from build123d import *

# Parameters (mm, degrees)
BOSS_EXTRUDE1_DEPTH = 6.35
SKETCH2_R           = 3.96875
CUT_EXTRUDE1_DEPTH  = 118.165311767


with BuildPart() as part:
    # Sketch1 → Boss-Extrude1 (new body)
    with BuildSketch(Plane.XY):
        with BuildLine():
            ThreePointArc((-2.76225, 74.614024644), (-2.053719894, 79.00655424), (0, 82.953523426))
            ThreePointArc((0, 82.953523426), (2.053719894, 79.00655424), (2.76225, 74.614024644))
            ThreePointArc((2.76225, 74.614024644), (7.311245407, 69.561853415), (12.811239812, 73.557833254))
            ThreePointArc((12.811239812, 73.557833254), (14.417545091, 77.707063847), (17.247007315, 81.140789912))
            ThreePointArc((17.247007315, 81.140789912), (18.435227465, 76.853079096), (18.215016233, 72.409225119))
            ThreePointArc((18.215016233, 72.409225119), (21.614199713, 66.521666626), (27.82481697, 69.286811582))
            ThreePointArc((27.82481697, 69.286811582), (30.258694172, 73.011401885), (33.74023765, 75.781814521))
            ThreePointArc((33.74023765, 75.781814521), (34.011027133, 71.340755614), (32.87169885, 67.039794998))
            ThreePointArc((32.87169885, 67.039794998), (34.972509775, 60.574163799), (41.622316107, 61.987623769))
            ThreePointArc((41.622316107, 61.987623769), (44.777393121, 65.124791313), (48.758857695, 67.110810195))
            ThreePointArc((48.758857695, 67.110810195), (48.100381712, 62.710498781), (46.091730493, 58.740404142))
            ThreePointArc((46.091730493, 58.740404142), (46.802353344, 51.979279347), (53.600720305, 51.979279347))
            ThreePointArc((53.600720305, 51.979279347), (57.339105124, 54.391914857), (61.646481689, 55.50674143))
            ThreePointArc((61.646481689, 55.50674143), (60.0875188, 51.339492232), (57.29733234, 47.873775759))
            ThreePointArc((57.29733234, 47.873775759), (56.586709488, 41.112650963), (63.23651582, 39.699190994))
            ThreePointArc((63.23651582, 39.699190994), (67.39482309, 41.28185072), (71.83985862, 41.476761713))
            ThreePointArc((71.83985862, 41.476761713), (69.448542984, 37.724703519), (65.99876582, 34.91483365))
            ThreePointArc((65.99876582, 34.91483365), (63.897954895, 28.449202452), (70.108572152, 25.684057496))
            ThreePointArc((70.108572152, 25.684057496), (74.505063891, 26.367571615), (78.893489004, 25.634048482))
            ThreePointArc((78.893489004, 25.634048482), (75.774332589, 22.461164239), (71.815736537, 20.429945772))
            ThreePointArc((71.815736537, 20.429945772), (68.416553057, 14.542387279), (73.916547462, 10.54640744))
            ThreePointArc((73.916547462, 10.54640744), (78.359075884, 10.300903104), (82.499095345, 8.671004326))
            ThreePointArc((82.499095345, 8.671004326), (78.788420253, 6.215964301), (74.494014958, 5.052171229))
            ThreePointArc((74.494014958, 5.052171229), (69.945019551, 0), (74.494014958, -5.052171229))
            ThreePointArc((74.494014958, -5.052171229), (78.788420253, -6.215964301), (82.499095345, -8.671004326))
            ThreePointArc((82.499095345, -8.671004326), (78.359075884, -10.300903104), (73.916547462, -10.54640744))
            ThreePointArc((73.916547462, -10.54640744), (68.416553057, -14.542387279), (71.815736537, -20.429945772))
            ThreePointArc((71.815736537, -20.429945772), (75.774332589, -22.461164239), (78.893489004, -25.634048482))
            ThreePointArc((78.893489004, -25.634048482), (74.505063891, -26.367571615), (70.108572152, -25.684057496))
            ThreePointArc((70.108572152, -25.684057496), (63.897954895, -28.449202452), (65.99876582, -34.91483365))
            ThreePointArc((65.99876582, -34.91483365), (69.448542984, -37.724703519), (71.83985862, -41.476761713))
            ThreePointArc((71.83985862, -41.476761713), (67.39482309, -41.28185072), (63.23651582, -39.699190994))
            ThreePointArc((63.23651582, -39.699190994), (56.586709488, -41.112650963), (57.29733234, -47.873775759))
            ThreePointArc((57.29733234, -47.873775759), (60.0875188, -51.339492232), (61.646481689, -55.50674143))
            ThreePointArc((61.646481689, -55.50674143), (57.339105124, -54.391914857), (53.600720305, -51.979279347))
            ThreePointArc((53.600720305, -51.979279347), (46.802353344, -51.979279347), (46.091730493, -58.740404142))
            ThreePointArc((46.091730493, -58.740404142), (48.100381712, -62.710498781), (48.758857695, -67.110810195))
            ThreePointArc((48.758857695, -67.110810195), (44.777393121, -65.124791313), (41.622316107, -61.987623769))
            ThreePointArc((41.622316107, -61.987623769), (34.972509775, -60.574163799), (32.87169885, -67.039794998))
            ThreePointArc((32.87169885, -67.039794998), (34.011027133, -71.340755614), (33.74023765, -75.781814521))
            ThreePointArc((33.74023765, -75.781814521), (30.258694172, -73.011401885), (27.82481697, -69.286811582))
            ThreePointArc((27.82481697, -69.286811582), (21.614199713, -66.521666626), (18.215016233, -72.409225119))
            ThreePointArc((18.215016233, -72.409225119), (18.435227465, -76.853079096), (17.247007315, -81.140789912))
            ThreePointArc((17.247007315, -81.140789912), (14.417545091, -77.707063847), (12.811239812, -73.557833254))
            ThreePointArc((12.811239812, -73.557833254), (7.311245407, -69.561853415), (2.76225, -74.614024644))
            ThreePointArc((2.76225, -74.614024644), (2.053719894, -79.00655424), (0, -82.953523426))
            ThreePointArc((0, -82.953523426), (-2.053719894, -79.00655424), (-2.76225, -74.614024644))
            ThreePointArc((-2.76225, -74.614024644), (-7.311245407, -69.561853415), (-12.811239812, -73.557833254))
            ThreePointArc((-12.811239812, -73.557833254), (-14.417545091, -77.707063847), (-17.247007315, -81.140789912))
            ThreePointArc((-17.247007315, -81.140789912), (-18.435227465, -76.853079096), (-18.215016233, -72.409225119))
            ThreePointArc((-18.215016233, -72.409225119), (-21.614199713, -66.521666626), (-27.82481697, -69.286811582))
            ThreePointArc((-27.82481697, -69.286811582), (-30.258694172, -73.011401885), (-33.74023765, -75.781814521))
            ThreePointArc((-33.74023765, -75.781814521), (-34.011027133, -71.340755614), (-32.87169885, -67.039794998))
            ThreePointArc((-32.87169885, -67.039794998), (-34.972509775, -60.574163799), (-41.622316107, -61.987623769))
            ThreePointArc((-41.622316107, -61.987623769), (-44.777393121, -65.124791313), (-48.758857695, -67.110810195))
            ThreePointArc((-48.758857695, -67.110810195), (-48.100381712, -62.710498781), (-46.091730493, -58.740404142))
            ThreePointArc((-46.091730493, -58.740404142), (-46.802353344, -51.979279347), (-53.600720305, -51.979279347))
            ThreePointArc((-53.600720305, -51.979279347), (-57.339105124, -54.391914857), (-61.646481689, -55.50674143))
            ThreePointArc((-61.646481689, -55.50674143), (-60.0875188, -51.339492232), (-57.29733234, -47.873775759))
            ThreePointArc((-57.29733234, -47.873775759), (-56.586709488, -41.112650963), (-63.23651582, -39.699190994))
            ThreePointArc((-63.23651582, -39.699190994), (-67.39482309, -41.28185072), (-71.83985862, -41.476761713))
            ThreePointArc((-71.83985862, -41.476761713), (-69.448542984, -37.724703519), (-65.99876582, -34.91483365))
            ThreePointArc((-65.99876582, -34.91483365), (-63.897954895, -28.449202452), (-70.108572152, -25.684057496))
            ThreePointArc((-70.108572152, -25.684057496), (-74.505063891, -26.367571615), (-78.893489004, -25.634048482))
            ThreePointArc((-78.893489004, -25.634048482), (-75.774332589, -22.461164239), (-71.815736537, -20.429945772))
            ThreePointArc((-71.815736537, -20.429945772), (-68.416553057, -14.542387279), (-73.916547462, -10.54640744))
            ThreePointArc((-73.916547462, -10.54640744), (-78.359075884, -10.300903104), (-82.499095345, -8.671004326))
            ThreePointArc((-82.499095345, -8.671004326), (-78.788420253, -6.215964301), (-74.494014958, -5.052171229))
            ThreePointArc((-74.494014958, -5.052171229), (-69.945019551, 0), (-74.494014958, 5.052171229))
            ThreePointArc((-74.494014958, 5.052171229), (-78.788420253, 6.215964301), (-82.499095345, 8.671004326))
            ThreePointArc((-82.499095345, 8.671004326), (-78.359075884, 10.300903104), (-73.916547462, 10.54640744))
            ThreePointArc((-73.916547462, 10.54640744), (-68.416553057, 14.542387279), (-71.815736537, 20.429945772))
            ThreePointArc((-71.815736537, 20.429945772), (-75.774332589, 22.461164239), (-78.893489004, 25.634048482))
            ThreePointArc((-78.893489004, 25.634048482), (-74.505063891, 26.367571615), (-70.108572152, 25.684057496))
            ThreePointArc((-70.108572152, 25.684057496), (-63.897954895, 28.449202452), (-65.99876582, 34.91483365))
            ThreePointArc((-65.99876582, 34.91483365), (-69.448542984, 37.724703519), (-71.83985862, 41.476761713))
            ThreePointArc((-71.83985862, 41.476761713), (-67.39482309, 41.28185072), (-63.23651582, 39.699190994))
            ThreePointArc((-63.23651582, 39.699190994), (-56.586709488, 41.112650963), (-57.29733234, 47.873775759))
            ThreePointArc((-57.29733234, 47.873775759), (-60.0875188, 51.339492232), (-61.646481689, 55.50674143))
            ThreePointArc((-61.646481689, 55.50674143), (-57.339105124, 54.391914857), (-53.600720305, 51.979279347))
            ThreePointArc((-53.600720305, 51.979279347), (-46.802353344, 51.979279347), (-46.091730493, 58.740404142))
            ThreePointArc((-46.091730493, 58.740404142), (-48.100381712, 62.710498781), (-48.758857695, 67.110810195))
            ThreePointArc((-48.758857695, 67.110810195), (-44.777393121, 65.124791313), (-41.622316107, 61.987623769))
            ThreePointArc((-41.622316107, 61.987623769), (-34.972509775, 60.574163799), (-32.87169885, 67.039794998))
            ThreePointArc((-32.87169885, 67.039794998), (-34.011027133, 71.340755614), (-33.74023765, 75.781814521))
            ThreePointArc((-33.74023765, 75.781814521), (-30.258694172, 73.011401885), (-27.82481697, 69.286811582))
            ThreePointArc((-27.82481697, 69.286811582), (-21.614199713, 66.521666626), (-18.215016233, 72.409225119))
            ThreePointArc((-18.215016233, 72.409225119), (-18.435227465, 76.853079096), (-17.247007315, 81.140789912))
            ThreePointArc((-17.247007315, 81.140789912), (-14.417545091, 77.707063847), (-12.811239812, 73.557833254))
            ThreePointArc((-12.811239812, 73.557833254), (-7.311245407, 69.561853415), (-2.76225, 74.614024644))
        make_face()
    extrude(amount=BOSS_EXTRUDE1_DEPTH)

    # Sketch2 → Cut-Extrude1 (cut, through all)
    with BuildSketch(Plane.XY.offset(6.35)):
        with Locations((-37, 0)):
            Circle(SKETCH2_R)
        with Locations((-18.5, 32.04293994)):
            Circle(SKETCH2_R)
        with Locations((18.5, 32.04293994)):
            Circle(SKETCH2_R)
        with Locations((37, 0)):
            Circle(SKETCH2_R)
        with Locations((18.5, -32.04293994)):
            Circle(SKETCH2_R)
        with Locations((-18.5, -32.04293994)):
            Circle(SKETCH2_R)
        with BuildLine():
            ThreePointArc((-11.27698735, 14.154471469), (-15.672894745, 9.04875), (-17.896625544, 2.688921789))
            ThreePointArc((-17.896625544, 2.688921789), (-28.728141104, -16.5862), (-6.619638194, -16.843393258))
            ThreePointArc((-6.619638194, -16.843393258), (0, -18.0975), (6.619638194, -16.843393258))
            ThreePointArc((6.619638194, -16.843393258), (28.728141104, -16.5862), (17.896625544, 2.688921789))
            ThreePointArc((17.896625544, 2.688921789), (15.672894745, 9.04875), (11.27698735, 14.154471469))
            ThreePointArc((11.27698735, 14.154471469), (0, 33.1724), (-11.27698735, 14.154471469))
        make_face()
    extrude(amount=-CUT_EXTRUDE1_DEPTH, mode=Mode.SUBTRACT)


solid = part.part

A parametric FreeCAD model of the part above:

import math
import FreeCAD as App
import Part
import Sketcher
Q = App.Units.Quantity

doc = App.newDocument("Part")
body = doc.addObject("PartDesign::Body", "Body")

sketch1 = body.newObject("Sketcher::SketchObject", "Sketch")
sketch1.AttachmentSupport = (doc.getObject("XY_Plane"), [""])
sketch1.MapMode = "FlatFace"
sketch1.addGeometry([
    Part.ArcOfCircle(Part.Circle(App.Vector(11.20775, 74.614025, 0), App.Vector(0, 0, 1), 13.97), math.radians(143.347683), math.radians(180)),
    Part.ArcOfCircle(Part.Circle(App.Vector(-7.84225, 74.614025, 0), App.Vector(0, 0, 1), 5.08), math.radians(-168), math.radians(0)),
    Part.ArcOfCircle(Part.Circle(App.Vector(-26.475962, 70.653307, 0), App.Vector(0, 0, 1), 13.97), math.radians(12), math.radians(48.652317)),
    Part.ArcOfCircle(Part.Circle(App.Vector(-4.550294, 75.313751, 0), App.Vector(0, 0, 1), 13.97), math.radians(155.347683), math.radians(192)),
    Part.ArcOfCircle(Part.Circle(App.Vector(-23.184006, 71.353034, 0), App.Vector(0, 0, 1), 5.08), math.radians(-156), math.radians(12)),
    Part.ArcOfCircle(Part.Circle(App.Vector(-40.587047, 63.604701, 0), App.Vector(0, 0, 1), 13.97), math.radians(24), math.radians(60.652317)),
    Part.ArcOfCircle(Part.Circle(App.Vector(-20.109469, 72.721906, 0), App.Vector(0, 0, 1), 13.97), math.radians(167.347683), math.radians(204)),
    Part.ArcOfCircle(Part.Circle(App.Vector(-37.51251, 64.973573, 0), App.Vector(0, 0, 1), 5.08), math.radians(-144), math.radians(24)),
    Part.ArcOfCircle(Part.Circle(App.Vector(-52.924284, 53.776264, 0), App.Vector(0, 0, 1), 13.97), math.radians(36), math.radians(72.652317)),
    Part.ArcOfCircle(Part.Circle(App.Vector(-34.789763, 66.951764, 0), App.Vector(0, 0, 1), 13.97), math.radians(179.347683), math.radians(216)),
    Part.ArcOfCircle(Part.Circle(App.Vector(-50.201537, 55.754455, 0), App.Vector(0, 0, 1), 5.08), math.radians(-132), math.radians(36)),
    Part.ArcOfCircle(Part.Circle(App.Vector(-62.948475, 41.597546, 0), App.Vector(0, 0, 1), 13.97), math.radians(48), math.radians(84.652317)),
    Part.ArcOfCircle(Part.Circle(App.Vector(-47.949578, 58.255509, 0), App.Vector(0, 0, 1), 13.97), math.radians(-168.652317), math.radians(-132)),
    Part.ArcOfCircle(Part.Circle(App.Vector(-60.696516, 44.0986, 0), App.Vector(0, 0, 1), 5.08), math.radians(-120), math.radians(48)),
    Part.ArcOfCircle(Part.Circle(App.Vector(-70.221516, 27.600816, 0), App.Vector(0, 0, 1), 13.97), math.radians(60), math.radians(96.652317)),
    Part.ArcOfCircle(Part.Circle(App.Vector(-59.013766, 47.013209, 0), App.Vector(0, 0, 1), 13.97), math.radians(-156.652317), math.radians(-120)),
    Part.ArcOfCircle(Part.Circle(App.Vector(-68.538766, 30.515425, 0), App.Vector(0, 0, 1), 5.08), math.radians(-108), math.radians(60)),
    Part.ArcOfCircle(Part.Circle(App.Vector(-74.42554, 12.397798, 0), App.Vector(0, 0, 1), 13.97), math.radians(72), math.radians(108.652317)),
    Part.ArcOfCircle(Part.Circle(App.Vector(-67.498769, 33.716205, 0), App.Vector(0, 0, 1), 13.97), math.radians(-144.652317), math.radians(-108)),
    Part.ArcOfCircle(Part.Circle(App.Vector(-73.385543, 15.598579, 0), App.Vector(0, 0, 1), 5.08), math.radians(-96), math.radians(72)),
    Part.ArcOfCircle(Part.Circle(App.Vector(-75.37681, -3.347063, 0), App.Vector(0, 0, 1), 13.97), math.radians(84), math.radians(120.652317)),
    Part.ArcOfCircle(Part.Circle(App.Vector(-73.033752, 18.945642, 0), App.Vector(0, 0, 1), 13.97), math.radians(-132.652317), math.radians(-96)),
    Part.ArcOfCircle(Part.Circle(App.Vector(-75.02502, 0, 0), App.Vector(0, 0, 1), 5.08), math.radians(-84), math.radians(84)),
    Part.ArcOfCircle(Part.Circle(App.Vector(-73.033752, -18.945642, 0), App.Vector(0, 0, 1), 13.97), math.radians(96), math.radians(132.652317)),
    Part.ArcOfCircle(Part.Circle(App.Vector(-75.37681, 3.347063, 0), App.Vector(0, 0, 1), 13.97), math.radians(-120.652317), math.radians(-84)),
    Part.ArcOfCircle(Part.Circle(App.Vector(-73.385543, -15.598579, 0), App.Vector(0, 0, 1), 5.08), math.radians(-72), math.radians(96)),
    Part.ArcOfCircle(Part.Circle(App.Vector(-67.498769, -33.716205, 0), App.Vector(0, 0, 1), 13.97), math.radians(108), math.radians(144.652317)),
    Part.ArcOfCircle(Part.Circle(App.Vector(-74.42554, -12.397798, 0), App.Vector(0, 0, 1), 13.97), math.radians(-108.652317), math.radians(-72)),
    Part.ArcOfCircle(Part.Circle(App.Vector(-68.538766, -30.515425, 0), App.Vector(0, 0, 1), 5.08), math.radians(-60), math.radians(108)),
    Part.ArcOfCircle(Part.Circle(App.Vector(-59.013766, -47.013209, 0), App.Vector(0, 0, 1), 13.97), math.radians(120), math.radians(156.652317)),
    Part.ArcOfCircle(Part.Circle(App.Vector(-70.221516, -27.600816, 0), App.Vector(0, 0, 1), 13.97), math.radians(-96.652317), math.radians(-60)),
    Part.ArcOfCircle(Part.Circle(App.Vector(-60.696516, -44.0986, 0), App.Vector(0, 0, 1), 5.08), math.radians(-48), math.radians(120)),
    Part.ArcOfCircle(Part.Circle(App.Vector(-47.949578, -58.255509, 0), App.Vector(0, 0, 1), 13.97), math.radians(132), math.radians(168.652317)),
    Part.ArcOfCircle(Part.Circle(App.Vector(-62.948475, -41.597546, 0), App.Vector(0, 0, 1), 13.97), math.radians(-84.652317), math.radians(-48)),
    Part.ArcOfCircle(Part.Circle(App.Vector(-50.201537, -55.754455, 0), App.Vector(0, 0, 1), 5.08), math.radians(-36), math.radians(132)),
    Part.ArcOfCircle(Part.Circle(App.Vector(-34.789763, -66.951764, 0), App.Vector(0, 0, 1), 13.97), math.radians(144), math.radians(180.652317)),
    Part.ArcOfCircle(Part.Circle(App.Vector(-52.924284, -53.776264, 0), App.Vector(0, 0, 1), 13.97), math.radians(-72.652317), math.radians(-36)),
    Part.ArcOfCircle(Part.Circle(App.Vector(-37.51251, -64.973573, 0), App.Vector(0, 0, 1), 5.08), math.radians(-24), math.radians(144)),
    Part.ArcOfCircle(Part.Circle(App.Vector(-20.109469, -72.721906, 0), App.Vector(0, 0, 1), 13.97), math.radians(156), math.radians(192.652317)),
    Part.ArcOfCircle(Part.Circle(App.Vector(-40.587047, -63.604701, 0), App.Vector(0, 0, 1), 13.97), math.radians(-60.652317), math.radians(-24)),
    Part.ArcOfCircle(Part.Circle(App.Vector(-23.184006, -71.353034, 0), App.Vector(0, 0, 1), 5.08), math.radians(-12), math.radians(156)),
    Part.ArcOfCircle(Part.Circle(App.Vector(-4.550294, -75.313751, 0), App.Vector(0, 0, 1), 13.97), math.radians(168), math.radians(204.652317)),
    Part.ArcOfCircle(Part.Circle(App.Vector(-26.475962, -70.653307, 0), App.Vector(0, 0, 1), 13.97), math.radians(-48.652317), math.radians(-12)),
    Part.ArcOfCircle(Part.Circle(App.Vector(-7.84225, -74.614025, 0), App.Vector(0, 0, 1), 5.08), math.radians(0), math.radians(168)),
    Part.ArcOfCircle(Part.Circle(App.Vector(11.20775, -74.614025, 0), App.Vector(0, 0, 1), 13.97), math.radians(180), math.radians(216.652317)),
    Part.ArcOfCircle(Part.Circle(App.Vector(-11.20775, -74.614025, 0), App.Vector(0, 0, 1), 13.97), math.radians(-36.652317), math.radians(0)),
    Part.ArcOfCircle(Part.Circle(App.Vector(7.84225, -74.614025, 0), App.Vector(0, 0, 1), 5.08), math.radians(12), math.radians(180)),
    Part.ArcOfCircle(Part.Circle(App.Vector(26.475962, -70.653307, 0), App.Vector(0, 0, 1), 13.97), math.radians(-168), math.radians(-131.347683)),
    Part.ArcOfCircle(Part.Circle(App.Vector(4.550294, -75.313751, 0), App.Vector(0, 0, 1), 13.97), math.radians(-24.652317), math.radians(12)),
    Part.ArcOfCircle(Part.Circle(App.Vector(23.184006, -71.353034, 0), App.Vector(0, 0, 1), 5.08), math.radians(24), math.radians(192)),
    Part.ArcOfCircle(Part.Circle(App.Vector(40.587047, -63.604701, 0), App.Vector(0, 0, 1), 13.97), math.radians(-156), math.radians(-119.347683)),
    Part.ArcOfCircle(Part.Circle(App.Vector(20.109469, -72.721906, 0), App.Vector(0, 0, 1), 13.97), math.radians(-12.652317), math.radians(24)),
    Part.ArcOfCircle(Part.Circle(App.Vector(37.51251, -64.973573, 0), App.Vector(0, 0, 1), 5.08), math.radians(36), math.radians(204)),
    Part.ArcOfCircle(Part.Circle(App.Vector(52.924284, -53.776264, 0), App.Vector(0, 0, 1), 13.97), math.radians(-144), math.radians(-107.347683)),
    Part.ArcOfCircle(Part.Circle(App.Vector(34.789763, -66.951764, 0), App.Vector(0, 0, 1), 13.97), math.radians(-0.652317), math.radians(36)),
    Part.ArcOfCircle(Part.Circle(App.Vector(50.201537, -55.754455, 0), App.Vector(0, 0, 1), 5.08), math.radians(48), math.radians(216)),
    Part.ArcOfCircle(Part.Circle(App.Vector(62.948475, -41.597546, 0), App.Vector(0, 0, 1), 13.97), math.radians(-132), math.radians(-95.347683)),
    Part.ArcOfCircle(Part.Circle(App.Vector(47.949578, -58.255509, 0), App.Vector(0, 0, 1), 13.97), math.radians(11.347683), math.radians(48)),
    Part.ArcOfCircle(Part.Circle(App.Vector(60.696516, -44.0986, 0), App.Vector(0, 0, 1), 5.08), math.radians(60), math.radians(228)),
    Part.ArcOfCircle(Part.Circle(App.Vector(70.221516, -27.600816, 0), App.Vector(0, 0, 1), 13.97), math.radians(-120), math.radians(-83.347683)),
    Part.ArcOfCircle(Part.Circle(App.Vector(59.013766, -47.013209, 0), App.Vector(0, 0, 1), 13.97), math.radians(23.347683), math.radians(60)),
    Part.ArcOfCircle(Part.Circle(App.Vector(68.538766, -30.515425, 0), App.Vector(0, 0, 1), 5.08), math.radians(72), math.radians(240)),
    Part.ArcOfCircle(Part.Circle(App.Vector(74.42554, -12.397798, 0), App.Vector(0, 0, 1), 13.97), math.radians(-108), math.radians(-71.347683)),
    Part.ArcOfCircle(Part.Circle(App.Vector(67.498769, -33.716205, 0), App.Vector(0, 0, 1), 13.97), math.radians(35.347683), math.radians(72)),
    Part.ArcOfCircle(Part.Circle(App.Vector(73.385543, -15.598579, 0), App.Vector(0, 0, 1), 5.08), math.radians(84), math.radians(252)),
    Part.ArcOfCircle(Part.Circle(App.Vector(75.37681, 3.347063, 0), App.Vector(0, 0, 1), 13.97), math.radians(-96), math.radians(-59.347683)),
    Part.ArcOfCircle(Part.Circle(App.Vector(73.033752, -18.945642, 0), App.Vector(0, 0, 1), 13.97), math.radians(47.347683), math.radians(84)),
    Part.ArcOfCircle(Part.Circle(App.Vector(75.02502, 0, 0), App.Vector(0, 0, 1), 5.08), math.radians(96), math.radians(264)),
    Part.ArcOfCircle(Part.Circle(App.Vector(73.033752, 18.945642, 0), App.Vector(0, 0, 1), 13.97), math.radians(-84), math.radians(-47.347683)),
    Part.ArcOfCircle(Part.Circle(App.Vector(75.37681, -3.347063, 0), App.Vector(0, 0, 1), 13.97), math.radians(59.347683), math.radians(96)),
    Part.ArcOfCircle(Part.Circle(App.Vector(73.385543, 15.598579, 0), App.Vector(0, 0, 1), 5.08), math.radians(108), math.radians(276)),
    Part.ArcOfCircle(Part.Circle(App.Vector(67.498769, 33.716205, 0), App.Vector(0, 0, 1), 13.97), math.radians(-72), math.radians(-35.347683)),
    Part.ArcOfCircle(Part.Circle(App.Vector(74.42554, 12.397798, 0), App.Vector(0, 0, 1), 13.97), math.radians(71.347683), math.radians(108)),
    Part.ArcOfCircle(Part.Circle(App.Vector(68.538766, 30.515425, 0), App.Vector(0, 0, 1), 5.08), math.radians(120), math.radians(288)),
    Part.ArcOfCircle(Part.Circle(App.Vector(59.013766, 47.013209, 0), App.Vector(0, 0, 1), 13.97), math.radians(-60), math.radians(-23.347683)),
    Part.ArcOfCircle(Part.Circle(App.Vector(70.221516, 27.600816, 0), App.Vector(0, 0, 1), 13.97), math.radians(83.347683), math.radians(120)),
    Part.ArcOfCircle(Part.Circle(App.Vector(60.696516, 44.0986, 0), App.Vector(0, 0, 1), 5.08), math.radians(132), math.radians(300)),
    Part.ArcOfCircle(Part.Circle(App.Vector(47.949578, 58.255509, 0), App.Vector(0, 0, 1), 13.97), math.radians(-48), math.radians(-11.347683)),
    Part.ArcOfCircle(Part.Circle(App.Vector(62.948475, 41.597546, 0), App.Vector(0, 0, 1), 13.97), math.radians(95.347683), math.radians(132)),
    Part.ArcOfCircle(Part.Circle(App.Vector(50.201537, 55.754455, 0), App.Vector(0, 0, 1), 5.08), math.radians(144), math.radians(312)),
    Part.ArcOfCircle(Part.Circle(App.Vector(34.789763, 66.951764, 0), App.Vector(0, 0, 1), 13.97), math.radians(-36), math.radians(0.652317)),
    Part.ArcOfCircle(Part.Circle(App.Vector(52.924284, 53.776264, 0), App.Vector(0, 0, 1), 13.97), math.radians(107.347683), math.radians(144)),
    Part.ArcOfCircle(Part.Circle(App.Vector(37.51251, 64.973573, 0), App.Vector(0, 0, 1), 5.08), math.radians(156), math.radians(324)),
    Part.ArcOfCircle(Part.Circle(App.Vector(20.109469, 72.721906, 0), App.Vector(0, 0, 1), 13.97), math.radians(-24), math.radians(12.652317)),
    Part.ArcOfCircle(Part.Circle(App.Vector(40.587047, 63.604701, 0), App.Vector(0, 0, 1), 13.97), math.radians(119.347683), math.radians(156)),
    Part.ArcOfCircle(Part.Circle(App.Vector(23.184006, 71.353034, 0), App.Vector(0, 0, 1), 5.08), math.radians(168), math.radians(336)),
    Part.ArcOfCircle(Part.Circle(App.Vector(4.550294, 75.313751, 0), App.Vector(0, 0, 1), 13.97), math.radians(-12), math.radians(24.652317)),
    Part.ArcOfCircle(Part.Circle(App.Vector(26.475962, 70.653307, 0), App.Vector(0, 0, 1), 13.97), math.radians(131.347683), math.radians(168)),
    Part.ArcOfCircle(Part.Circle(App.Vector(7.84225, 74.614025, 0), App.Vector(0, 0, 1), 5.08), math.radians(180), math.radians(348)),
    Part.ArcOfCircle(Part.Circle(App.Vector(-11.20775, 74.614025, 0), App.Vector(0, 0, 1), 13.97), math.radians(0), math.radians(36.652317)),
], False)
sketch1.addConstraint([
    Sketcher.Constraint("Tangent", 0, 2, 1, 2),
    Sketcher.Constraint("Tangent", 1, 1, 2, 1),
    Sketcher.Constraint("Coincident", 2, 2, 3, 1),
    Sketcher.Constraint("Tangent", 3, 2, 4, 2),
    Sketcher.Constraint("Tangent", 4, 1, 5, 1),
    Sketcher.Constraint("Coincident", 5, 2, 6, 1),
    Sketcher.Constraint("Tangent", 6, 2, 7, 2),
    Sketcher.Constraint("Tangent", 7, 1, 8, 1),
    Sketcher.Constraint("Coincident", 8, 2, 9, 1),
    Sketcher.Constraint("Tangent", 9, 2, 10, 2),
    Sketcher.Constraint("Tangent", 10, 1, 11, 1),
    Sketcher.Constraint("Coincident", 11, 2, 12, 1),
    Sketcher.Constraint("Tangent", 12, 2, 13, 2),
    Sketcher.Constraint("Tangent", 13, 1, 14, 1),
    Sketcher.Constraint("Coincident", 14, 2, 15, 1),
    Sketcher.Constraint("Tangent", 15, 2, 16, 2),
    Sketcher.Constraint("Tangent", 16, 1, 17, 1),
    Sketcher.Constraint("Coincident", 17, 2, 18, 1),
    Sketcher.Constraint("Tangent", 18, 2, 19, 2),
    Sketcher.Constraint("Tangent", 19, 1, 20, 1),
    Sketcher.Constraint("Coincident", 20, 2, 21, 1),
    Sketcher.Constraint("Tangent", 21, 2, 22, 2),
    Sketcher.Constraint("Tangent", 22, 1, 23, 1),
    Sketcher.Constraint("Coincident", 23, 2, 24, 1),
    Sketcher.Constraint("Tangent", 24, 2, 25, 2),
    Sketcher.Constraint("Tangent", 25, 1, 26, 1),
    Sketcher.Constraint("Coincident", 26, 2, 27, 1),
    Sketcher.Constraint("Tangent", 27, 2, 28, 2),
    Sketcher.Constraint("Tangent", 28, 1, 29, 1),
    Sketcher.Constraint("Coincident", 29, 2, 30, 1),
    Sketcher.Constraint("Tangent", 30, 2, 31, 2),
    Sketcher.Constraint("Tangent", 31, 1, 32, 1),
    Sketcher.Constraint("Coincident", 32, 2, 33, 1),
    Sketcher.Constraint("Tangent", 33, 2, 34, 2),
    Sketcher.Constraint("Tangent", 34, 1, 35, 1),
    Sketcher.Constraint("Coincident", 35, 2, 36, 1),
    Sketcher.Constraint("Tangent", 36, 2, 37, 2),
    Sketcher.Constraint("Tangent", 37, 1, 38, 1),
    Sketcher.Constraint("Coincident", 38, 2, 39, 1),
    Sketcher.Constraint("Tangent", 39, 2, 40, 2),
    Sketcher.Constraint("Tangent", 40, 1, 41, 1),
    Sketcher.Constraint("Coincident", 41, 2, 42, 1),
    Sketcher.Constraint("Tangent", 42, 2, 43, 2),
    Sketcher.Constraint("Tangent", 43, 1, 44, 1),
    Sketcher.Constraint("Coincident", 44, 2, 45, 1),
    Sketcher.Constraint("Tangent", 45, 2, 46, 2),
    Sketcher.Constraint("Tangent", 46, 1, 47, 1),
    Sketcher.Constraint("Coincident", 47, 2, 48, 1),
    Sketcher.Constraint("Tangent", 48, 2, 49, 2),
    Sketcher.Constraint("Tangent", 49, 1, 50, 1),
    Sketcher.Constraint("Coincident", 50, 2, 51, 1),
    Sketcher.Constraint("Tangent", 51, 2, 52, 2),
    Sketcher.Constraint("Tangent", 52, 1, 53, 1),
    Sketcher.Constraint("Coincident", 53, 2, 54, 1),
    Sketcher.Constraint("Tangent", 54, 2, 55, 2),
    Sketcher.Constraint("Tangent", 55, 1, 56, 1),
    Sketcher.Constraint("Coincident", 56, 2, 57, 1),
    Sketcher.Constraint("Tangent", 57, 2, 58, 2),
    Sketcher.Constraint("Tangent", 58, 1, 59, 1),
    Sketcher.Constraint("Coincident", 59, 2, 60, 1),
    Sketcher.Constraint("Tangent", 60, 2, 61, 2),
    Sketcher.Constraint("Tangent", 61, 1, 62, 1),
    Sketcher.Constraint("Coincident", 62, 2, 63, 1),
    Sketcher.Constraint("Tangent", 63, 2, 64, 2),
    Sketcher.Constraint("Tangent", 64, 1, 65, 1),
    Sketcher.Constraint("Coincident", 65, 2, 66, 1),
    Sketcher.Constraint("Tangent", 66, 2, 67, 2),
    Sketcher.Constraint("Tangent", 67, 1, 68, 1),
    Sketcher.Constraint("Coincident", 68, 2, 69, 1),
    Sketcher.Constraint("Tangent", 69, 2, 70, 2),
    Sketcher.Constraint("Tangent", 70, 1, 71, 1),
    Sketcher.Constraint("Coincident", 71, 2, 72, 1),
    Sketcher.Constraint("Tangent", 72, 2, 73, 2),
    Sketcher.Constraint("Tangent", 73, 1, 74, 1),
    Sketcher.Constraint("Coincident", 74, 2, 75, 1),
    Sketcher.Constraint("Tangent", 75, 2, 76, 2),
    Sketcher.Constraint("Tangent", 76, 1, 77, 1),
    Sketcher.Constraint("Coincident", 77, 2, 78, 1),
    Sketcher.Constraint("Tangent", 78, 2, 79, 2),
    Sketcher.Constraint("Tangent", 79, 1, 80, 1),
    Sketcher.Constraint("Coincident", 80, 2, 81, 1),
    Sketcher.Constraint("Tangent", 81, 2, 82, 2),
    Sketcher.Constraint("Tangent", 82, 1, 83, 1),
    Sketcher.Constraint("Coincident", 83, 2, 84, 1),
    Sketcher.Constraint("Tangent", 84, 2, 85, 2),
    Sketcher.Constraint("Tangent", 85, 1, 86, 1),
    Sketcher.Constraint("Coincident", 86, 2, 87, 1),
    Sketcher.Constraint("Tangent", 87, 2, 88, 2),
    Sketcher.Constraint("Tangent", 88, 1, 89, 1),
    Sketcher.Constraint("Coincident", 89, 2, 0, 1),
    Sketcher.Constraint("Equal", 0, 2),
    Sketcher.Constraint("Equal", 2, 3),
    Sketcher.Constraint("Equal", 1, 4),
    Sketcher.Constraint("Equal", 3, 5),
    Sketcher.Constraint("Equal", 5, 6),
    Sketcher.Constraint("Equal", 4, 7),
    Sketcher.Constraint("Equal", 6, 8),
    Sketcher.Constraint("Equal", 8, 9),
    Sketcher.Constraint("Equal", 7, 10),
    Sketcher.Constraint("Equal", 9, 11),
    Sketcher.Constraint("Equal", 11, 12),
    Sketcher.Constraint("Equal", 10, 13),
    Sketcher.Constraint("Equal", 12, 14),
    Sketcher.Constraint("Equal", 14, 15),
    Sketcher.Constraint("Equal", 13, 16),
    Sketcher.Constraint("Equal", 15, 17),
    Sketcher.Constraint("Equal", 17, 18),
    Sketcher.Constraint("Equal", 16, 19),
    Sketcher.Constraint("Equal", 18, 20),
    Sketcher.Constraint("Equal", 20, 21),
    Sketcher.Constraint("Equal", 19, 22),
    Sketcher.Constraint("Equal", 21, 23),
    Sketcher.Constraint("Equal", 23, 24),
    Sketcher.Constraint("Equal", 22, 25),
    Sketcher.Constraint("Equal", 24, 26),
    Sketcher.Constraint("Equal", 26, 27),
    Sketcher.Constraint("Equal", 25, 28),
    Sketcher.Constraint("Equal", 27, 29),
    Sketcher.Constraint("Equal", 29, 30),
    Sketcher.Constraint("Equal", 28, 31),
    Sketcher.Constraint("Equal", 30, 32),
    Sketcher.Constraint("Equal", 32, 33),
    Sketcher.Constraint("Equal", 31, 34),
    Sketcher.Constraint("Equal", 33, 35),
    Sketcher.Constraint("Equal", 35, 36),
    Sketcher.Constraint("Equal", 34, 37),
    Sketcher.Constraint("Equal", 36, 38),
    Sketcher.Constraint("Equal", 38, 39),
    Sketcher.Constraint("Equal", 37, 40),
    Sketcher.Constraint("Equal", 39, 41),
    Sketcher.Constraint("Equal", 41, 42),
    Sketcher.Constraint("Equal", 40, 43),
    Sketcher.Constraint("Equal", 42, 44),
    Sketcher.Constraint("Equal", 44, 45),
    Sketcher.Constraint("Equal", 43, 46),
    Sketcher.Constraint("Equal", 45, 47),
    Sketcher.Constraint("Equal", 47, 48),
    Sketcher.Constraint("Equal", 46, 49),
    Sketcher.Constraint("Equal", 48, 50),
    Sketcher.Constraint("Equal", 50, 51),
    Sketcher.Constraint("Equal", 49, 52),
    Sketcher.Constraint("Equal", 51, 53),
    Sketcher.Constraint("Equal", 53, 54),
    Sketcher.Constraint("Equal", 52, 55),
    Sketcher.Constraint("Equal", 54, 56),
    Sketcher.Constraint("Equal", 56, 57),
    Sketcher.Constraint("Equal", 55, 58),
    Sketcher.Constraint("Equal", 57, 59),
    Sketcher.Constraint("Equal", 59, 60),
    Sketcher.Constraint("Equal", 58, 61),
    Sketcher.Constraint("Equal", 60, 62),
    Sketcher.Constraint("Equal", 62, 63),
    Sketcher.Constraint("Equal", 61, 64),
    Sketcher.Constraint("Equal", 63, 65),
    Sketcher.Constraint("Equal", 65, 66),
    Sketcher.Constraint("Equal", 64, 67),
    Sketcher.Constraint("Equal", 66, 68),
    Sketcher.Constraint("Equal", 68, 69),
    Sketcher.Constraint("Equal", 67, 70),
    Sketcher.Constraint("Equal", 69, 71),
    Sketcher.Constraint("Equal", 71, 72),
    Sketcher.Constraint("Equal", 70, 73),
    Sketcher.Constraint("Equal", 72, 74),
    Sketcher.Constraint("Equal", 74, 75),
    Sketcher.Constraint("Equal", 73, 76),
    Sketcher.Constraint("Equal", 75, 77),
    Sketcher.Constraint("Equal", 77, 78),
    Sketcher.Constraint("Equal", 76, 79),
    Sketcher.Constraint("Equal", 78, 80),
    Sketcher.Constraint("Equal", 80, 81),
    Sketcher.Constraint("Equal", 79, 82),
    Sketcher.Constraint("Equal", 81, 83),
    Sketcher.Constraint("Equal", 83, 84),
    Sketcher.Constraint("Equal", 82, 85),
    Sketcher.Constraint("Equal", 84, 86),
    Sketcher.Constraint("Equal", 86, 87),
    Sketcher.Constraint("Equal", 85, 88),
    Sketcher.Constraint("Equal", 87, 89),
    Sketcher.Constraint("Symmetric", 0, 3, 45, 3, -1, 1),
    Sketcher.Constraint("Symmetric", 2, 3, 47, 3, -1, 1),
    Sketcher.Constraint("Symmetric", 3, 3, 48, 3, -1, 1),
    Sketcher.Constraint("Symmetric", 5, 3, 50, 3, -1, 1),
    Sketcher.Constraint("Symmetric", 6, 3, 51, 3, -1, 1),
    Sketcher.Constraint("Symmetric", 8, 3, 53, 3, -1, 1),
    Sketcher.Constraint("Symmetric", 9, 3, 54, 3, -1, 1),
    Sketcher.Constraint("Symmetric", 11, 3, 56, 3, -1, 1),
    Sketcher.Constraint("Symmetric", 12, 3, 57, 3, -1, 1),
    Sketcher.Constraint("Symmetric", 14, 3, 59, 3, -1, 1),
    Sketcher.Constraint("Symmetric", 15, 3, 60, 3, -1, 1),
    Sketcher.Constraint("Symmetric", 17, 3, 62, 3, -1, 1),
    Sketcher.Constraint("Symmetric", 18, 3, 63, 3, -1, 1),
    Sketcher.Constraint("Symmetric", 20, 3, 65, 3, -1, 1),
    Sketcher.Constraint("Symmetric", 21, 3, 66, 3, -1, 1),
    Sketcher.Constraint("Symmetric", 23, 3, 68, 3, -1, 1),
    Sketcher.Constraint("Symmetric", 24, 3, 69, 3, -1, 1),
    Sketcher.Constraint("Symmetric", 26, 3, 71, 3, -1, 1),
    Sketcher.Constraint("Symmetric", 27, 3, 72, 3, -1, 1),
    Sketcher.Constraint("Symmetric", 29, 3, 74, 3, -1, 1),
    Sketcher.Constraint("Symmetric", 30, 3, 75, 3, -1, 1),
    Sketcher.Constraint("Symmetric", 32, 3, 77, 3, -1, 1),
    Sketcher.Constraint("Symmetric", 33, 3, 78, 3, -1, 1),
    Sketcher.Constraint("Symmetric", 35, 3, 80, 3, -1, 1),
    Sketcher.Constraint("Symmetric", 36, 3, 81, 3, -1, 1),
    Sketcher.Constraint("Symmetric", 38, 3, 83, 3, -1, 1),
    Sketcher.Constraint("Symmetric", 39, 3, 84, 3, -1, 1),
    Sketcher.Constraint("Symmetric", 41, 3, 86, 3, -1, 1),
    Sketcher.Constraint("Symmetric", 42, 3, 87, 3, -1, 1),
    Sketcher.Constraint("Symmetric", 44, 3, 89, 3, -1, 1),
    Sketcher.Constraint("Symmetric", 44, 3, 45, 3, -2),
    Sketcher.Constraint("Symmetric", 42, 3, 47, 3, -2),
    Sketcher.Constraint("Symmetric", 41, 3, 48, 3, -2),
    Sketcher.Constraint("Symmetric", 39, 3, 50, 3, -2),
    Sketcher.Constraint("Symmetric", 38, 3, 51, 3, -2),
    Sketcher.Constraint("Symmetric", 36, 3, 53, 3, -2),
    Sketcher.Constraint("Symmetric", 35, 3, 54, 3, -2),
    Sketcher.Constraint("Symmetric", 33, 3, 56, 3, -2),
    Sketcher.Constraint("Symmetric", 32, 3, 57, 3, -2),
    Sketcher.Constraint("Symmetric", 30, 3, 59, 3, -2),
    Sketcher.Constraint("Symmetric", 29, 3, 60, 3, -2),
    Sketcher.Constraint("Symmetric", 27, 3, 62, 3, -2),
    Sketcher.Constraint("Symmetric", 26, 3, 63, 3, -2),
    Sketcher.Constraint("Symmetric", 24, 3, 65, 3, -2),
    Sketcher.Constraint("Symmetric", 23, 3, 66, 3, -2),
    Sketcher.Constraint("Horizontal", 0, 3, 1, 3),
    Sketcher.Constraint("Radius", 1, Q("0.2 in")),
    Sketcher.Constraint("Radius", 0, Q("0.55 in")),
    Sketcher.Constraint("DistanceY", -1, 1, 5, 3, Q("63.604701 mm")),
    Sketcher.Constraint("DistanceY", -1, 1, 13, 3, Q("44.0986 mm")),
    Sketcher.Constraint("DistanceX", 6, 2, -1, 1, Q("32.871699 mm")),
    Sketcher.Constraint("DistanceX", -1, 1, 0, 3, Q("11.20775 mm")),
    Sketcher.Constraint("DistanceX", 2, 3, -1, 1, Q("26.475962 mm")),
    Sketcher.Constraint("DistanceY", -1, 1, 3, 3, Q("75.313751 mm")),
    Sketcher.Constraint("DistanceX", 6, 3, -1, 1, Q("20.109469 mm")),
    Sketcher.Constraint("DistanceY", -1, 1, 12, 3, Q("58.255509 mm")),
    Sketcher.Constraint("DistanceY", -1, 1, 15, 3, Q("47.013209 mm")),
    Sketcher.Constraint("DistanceX", 17, 3, -1, 1, Q("74.42554 mm")),
    Sketcher.Constraint("DistanceX", 18, 3, -1, 1, Q("67.498769 mm")),
    Sketcher.Constraint("DistanceY", -1, 1, 19, 3, Q("15.598579 mm")),
    Sketcher.Constraint("DistanceX", 20, 3, -1, 1, Q("75.37681 mm")),
    Sketcher.Constraint("DistanceX", 22, 3, -1, 1, Q("75.02502 mm")),
    Sketcher.Constraint("DistanceY", -1, 1, 2, 2, Q("81.14079 mm")),
    Sketcher.Constraint("DistanceY", -1, 1, 4, 1, Q("69.286812 mm")),
    Sketcher.Constraint("DistanceY", -1, 1, 8, 2, Q("67.11081 mm")),
    Sketcher.Constraint("DistanceX", 9, 2, -1, 1, Q("46.09173 mm")),
    Sketcher.Constraint("DistanceX", 10, 1, -1, 1, Q("53.60072 mm")),
    Sketcher.Constraint("DistanceY", -1, 1, 10, 1, Q("51.979279 mm")),
    Sketcher.Constraint("DistanceX", 11, 2, -1, 1, Q("61.646482 mm")),
    Sketcher.Constraint("DistanceY", -1, 1, 11, 2, Q("55.506741 mm")),
    Sketcher.Constraint("DistanceY", -1, 1, 13, 1, Q("39.699191 mm")),
    Sketcher.Constraint("DistanceX", 14, 2, -1, 1, Q("71.839859 mm")),
    Sketcher.Constraint("DistanceX", 17, 2, -1, 1, Q("78.893489 mm")),
    Sketcher.Constraint("DistanceY", -1, 1, 17, 2, Q("25.634048 mm")),
    Sketcher.Constraint("DistanceY", -1, 1, 21, 2, Q("5.052171 mm")),
    Sketcher.Constraint("DistanceY", -1, 1, 0, 3, Q("74.614025 mm")),
    Sketcher.Constraint("DistanceY", -1, 1, 6, 3, Q("72.721906 mm")),
])
pad1 = body.newObject("PartDesign::Pad", "Pad")
pad1.Profile = sketch1
pad1.Length = Q("0.25 in")

sketch2 = body.newObject("Sketcher::SketchObject", "Sketch001")
sketch2.AttachmentSupport = (doc.getObject("XY_Plane"), [""])
sketch2.MapMode = "FlatFace"
sketch2.AttachmentOffset = App.Placement(App.Vector(0, 0, 0.25 * 25.4), App.Rotation())
sketch2.addGeometry([
    Part.Circle(App.Vector(-37, 0, 0), App.Vector(0, 0, 1), 3.96875),
    Part.Circle(App.Vector(-18.5, 32.04294, 0), App.Vector(0, 0, 1), 3.96875),
    Part.Circle(App.Vector(18.5, 32.04294, 0), App.Vector(0, 0, 1), 3.96875),
    Part.Circle(App.Vector(37, 0, 0), App.Vector(0, 0, 1), 3.96875),
    Part.Circle(App.Vector(18.5, -32.04294, 0), App.Vector(0, 0, 1), 3.96875),
    Part.Circle(App.Vector(-18.5, -32.04294, 0), App.Vector(0, 0, 1), 3.96875),
    Part.ArcOfCircle(Part.Circle(App.Vector(0, 0, 0), App.Vector(0, 0, 1), 18.0975), math.radians(128.544629), math.radians(171.455371)),
    Part.ArcOfCircle(Part.Circle(App.Vector(-17.597636, -10.16, 0), App.Vector(0, 0, 1), 12.8524), math.radians(91.33301), math.radians(328.66699)),
    Part.ArcOfCircle(Part.Circle(App.Vector(0, 0, 0), App.Vector(0, 0, 1), 18.0975), math.radians(-111.455371), math.radians(-68.544629)),
    Part.ArcOfCircle(Part.Circle(App.Vector(17.597636, -10.16, 0), App.Vector(0, 0, 1), 12.8524), math.radians(-148.66699), math.radians(88.66699)),
    Part.ArcOfCircle(Part.Circle(App.Vector(0, 0, 0), App.Vector(0, 0, 1), 18.0975), math.radians(8.544629), math.radians(51.455371)),
    Part.ArcOfCircle(Part.Circle(App.Vector(0, 20.32, 0), App.Vector(0, 0, 1), 12.8524), math.radians(-28.66699), math.radians(208.66699)),
], False)
sketch2.addConstraint([
    Sketcher.Constraint("Coincident", 6, 2, 7, 1),
    Sketcher.Constraint("Coincident", 7, 2, 8, 1),
    Sketcher.Constraint("Coincident", 8, 2, 9, 1),
    Sketcher.Constraint("Coincident", 9, 2, 10, 1),
    Sketcher.Constraint("Coincident", 10, 2, 11, 1),
    Sketcher.Constraint("Coincident", 11, 2, 6, 1),
    Sketcher.Constraint("Coincident", 6, 3, -1, 1),
    Sketcher.Constraint("Coincident", 8, 3, -1, 1),
    Sketcher.Constraint("Coincident", 10, 3, -1, 1),
    Sketcher.Constraint("Equal", 0, 1),
    Sketcher.Constraint("Equal", 1, 2),
    Sketcher.Constraint("Equal", 2, 3),
    Sketcher.Constraint("Equal", 3, 4),
    Sketcher.Constraint("Equal", 4, 5),
    Sketcher.Constraint("Equal", 6, 8),
    Sketcher.Constraint("Equal", 7, 9),
    Sketcher.Constraint("Equal", 8, 10),
    Sketcher.Constraint("Equal", 9, 11),
    Sketcher.Constraint("Symmetric", 0, 3, 3, 3, -1, 1),
    Sketcher.Constraint("Symmetric", 1, 3, 4, 3, -1, 1),
    Sketcher.Constraint("Symmetric", 2, 3, 5, 3, -1, 1),
    Sketcher.Constraint("Symmetric", 1, 3, 2, 3, -2),
    Sketcher.Constraint("Symmetric", 7, 3, 9, 3, -2),
    Sketcher.Constraint("PointOnObject", 0, 3, -1),
    Sketcher.Constraint("PointOnObject", 11, 3, -2),
    Sketcher.Constraint("Diameter", 0, Q("0.3125 in")),
    Sketcher.Constraint("Radius", 7, Q("0.506 in")),
    Sketcher.Constraint("DistanceY", 7, 3, -1, 1, Q("0.4 in")),
    Sketcher.Constraint("DistanceY", -1, 1, 11, 3, Q("0.8 in")),
    Sketcher.Constraint("Radius", 6, Q("0.7125 in")),
    Sketcher.Constraint("DistanceX", 0, 3, -1, 1, Q("37 mm")),
    Sketcher.Constraint("DistanceX", 1, 3, -1, 1, Q("18.5 mm")),
    Sketcher.Constraint("DistanceX", 7, 3, 7, 2, Q("10.977998 mm")),
    Sketcher.Constraint("DistanceY", -1, 1, 1, 3, Q("32.04294 mm")),
])
pocket1 = body.newObject("PartDesign::Pocket", "Pocket")
pocket1.Profile = sketch2
pocket1.Type = "ThroughAll"

doc.recompute()
